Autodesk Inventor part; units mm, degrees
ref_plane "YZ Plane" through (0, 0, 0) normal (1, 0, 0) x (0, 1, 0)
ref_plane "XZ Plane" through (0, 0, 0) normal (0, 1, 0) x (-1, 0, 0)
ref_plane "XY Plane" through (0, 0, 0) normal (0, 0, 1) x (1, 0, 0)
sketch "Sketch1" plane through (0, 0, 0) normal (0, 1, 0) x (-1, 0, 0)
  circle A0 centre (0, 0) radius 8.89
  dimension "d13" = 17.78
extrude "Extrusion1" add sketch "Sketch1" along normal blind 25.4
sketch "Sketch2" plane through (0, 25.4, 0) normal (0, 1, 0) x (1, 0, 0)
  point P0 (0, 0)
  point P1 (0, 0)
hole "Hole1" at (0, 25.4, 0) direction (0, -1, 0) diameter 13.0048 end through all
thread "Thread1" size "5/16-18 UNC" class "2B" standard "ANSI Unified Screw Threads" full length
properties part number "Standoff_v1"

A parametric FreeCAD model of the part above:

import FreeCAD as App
import Part
import Sketcher
Q = App.Units.Quantity

doc = App.newDocument("Part")
params = doc.addObject("Spreadsheet::Sheet", "Params")
for row, (alias, value) in enumerate([
    ("sketch1_diameter", "0.7 in"),
    ("pad1_length", "1 in"),
    ("sketch2_diameter", "0.512 in"),
    ("hole_diameter", "0.512 in"),
], start=1):
    params.set(f"A{row}", alias)
    params.set(f"B{row}", "=" + value)
    params.setAlias(f"B{row}", alias)

body = doc.addObject("PartDesign::Body", "Body")

sketch1 = body.newObject("Sketcher::SketchObject", "Sketch")
sketch1.AttachmentSupport = (doc.getObject("XZ_Plane"), [""])
sketch1.MapMode = "FlatFace"
sketch1.addGeometry(Part.Circle(App.Vector(0, 0, 0), App.Vector(0, 0, 1), 9), False)
sketch1.addConstraint([
    Sketcher.Constraint("Coincident", 0, 3, -1, 1),
    Sketcher.Constraint("Diameter", 0, Q("0.7 in")),
])
sketch1.setExpression("Constraints[1]", "Params.sketch1_diameter")
pad1 = body.newObject("PartDesign::Pad", "Pad")
pad1.Profile = sketch1
pad1.setExpression("Length", "Params.pad1_length")
pad1.Reversed = True

sketch2 = body.newObject("Sketcher::SketchObject", "Sketch001")
sketch2.AttachmentSupport = (doc.getObject("XZ_Plane"), [""])
sketch2.MapMode = "FlatFace"
sketch2.AttachmentOffset = App.Placement(App.Vector(0, 0, -1 * 25.4), App.Rotation())
sketch2.addGeometry(Part.Circle(App.Vector(0, 0, 0), App.Vector(0, 0, 1), 7), False)
sketch2.addConstraint([
    Sketcher.Constraint("Coincident", 0, 3, -1, 1),
    Sketcher.Constraint("Diameter", 0, Q("0.512 in")),
])
sketch2.setExpression("Constraints[1]", "Params.sketch2_diameter")
doc.recompute()
hole = body.newObject("PartDesign::Hole", "Hole")
hole.Profile = sketch2
hole.ThreadType = "None"
hole.setExpression("Diameter", "Params.hole_diameter")
hole.DepthType = "ThroughAll"
hole.Reversed = True

doc.recompute()
